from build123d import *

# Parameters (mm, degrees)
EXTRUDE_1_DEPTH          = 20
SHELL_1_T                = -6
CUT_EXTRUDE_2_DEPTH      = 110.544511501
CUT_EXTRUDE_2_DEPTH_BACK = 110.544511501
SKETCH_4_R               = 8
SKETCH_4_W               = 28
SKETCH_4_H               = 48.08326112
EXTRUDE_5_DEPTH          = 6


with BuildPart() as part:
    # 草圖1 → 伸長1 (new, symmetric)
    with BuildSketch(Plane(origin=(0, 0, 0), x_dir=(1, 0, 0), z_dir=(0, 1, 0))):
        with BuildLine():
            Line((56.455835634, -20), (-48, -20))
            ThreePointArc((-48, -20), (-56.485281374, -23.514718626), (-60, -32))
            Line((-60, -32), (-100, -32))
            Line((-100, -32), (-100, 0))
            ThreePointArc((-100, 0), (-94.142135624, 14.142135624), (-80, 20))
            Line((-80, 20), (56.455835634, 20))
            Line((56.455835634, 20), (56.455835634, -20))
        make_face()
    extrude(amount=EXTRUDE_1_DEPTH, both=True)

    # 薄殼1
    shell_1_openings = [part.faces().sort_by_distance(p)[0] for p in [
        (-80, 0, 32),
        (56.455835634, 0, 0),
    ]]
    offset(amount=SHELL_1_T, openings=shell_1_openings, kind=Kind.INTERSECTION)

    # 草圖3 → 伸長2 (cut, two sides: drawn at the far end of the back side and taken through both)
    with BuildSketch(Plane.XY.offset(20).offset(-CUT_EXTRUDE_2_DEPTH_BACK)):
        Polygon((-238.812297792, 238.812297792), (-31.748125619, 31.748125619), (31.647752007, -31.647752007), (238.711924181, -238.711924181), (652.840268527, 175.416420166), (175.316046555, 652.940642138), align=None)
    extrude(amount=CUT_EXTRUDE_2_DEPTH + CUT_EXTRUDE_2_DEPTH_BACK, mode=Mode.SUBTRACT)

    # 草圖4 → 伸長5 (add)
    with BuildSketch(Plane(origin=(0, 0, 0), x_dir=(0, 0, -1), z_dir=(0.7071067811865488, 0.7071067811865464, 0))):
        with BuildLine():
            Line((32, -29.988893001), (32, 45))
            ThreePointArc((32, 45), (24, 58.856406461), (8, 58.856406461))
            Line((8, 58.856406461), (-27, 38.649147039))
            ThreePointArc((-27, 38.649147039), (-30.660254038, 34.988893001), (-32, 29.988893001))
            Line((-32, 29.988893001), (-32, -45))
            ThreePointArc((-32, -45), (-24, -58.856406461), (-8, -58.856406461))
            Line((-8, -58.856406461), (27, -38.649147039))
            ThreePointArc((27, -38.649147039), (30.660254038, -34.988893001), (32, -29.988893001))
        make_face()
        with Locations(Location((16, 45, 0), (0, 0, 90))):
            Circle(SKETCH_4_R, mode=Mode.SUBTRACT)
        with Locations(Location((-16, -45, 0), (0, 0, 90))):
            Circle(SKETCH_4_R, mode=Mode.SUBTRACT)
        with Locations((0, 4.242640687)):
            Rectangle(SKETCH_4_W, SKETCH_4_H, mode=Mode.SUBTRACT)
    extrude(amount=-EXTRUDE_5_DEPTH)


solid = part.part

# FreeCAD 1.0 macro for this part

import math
import FreeCAD as App
import Part
import Sketcher
from FreeCAD import Vector
Q = App.Units.Quantity


def faces_at(feature, points):
    """Names of the faces that lie closest to the given points."""
    faces = feature.Shape.Faces
    near = lambda p: min(range(len(faces)), key=lambda i: faces[i].distToShape(Part.Vertex(*p))[0])
    return sorted({f"Face{near(p) + 1}" for p in points})


def add_polygon(sketch, points):
    """Adds a closed chain of lines whose ends are joined by coincident constraints."""
    first, n = sketch.GeometryCount, len(points)
    for a, b in zip(points, points[1:] + points[:1]):
        sketch.addGeometry(Part.LineSegment(App.Vector(*a, 0), App.Vector(*b, 0)), False)
    for i in range(n):
        sketch.addConstraint(Sketcher.Constraint("Coincident", first + i, 2, first + (i + 1) % n, 1))

doc = App.newDocument("Part")
body = doc.addObject("PartDesign::Body", "Body")

sketch1 = doc.addObject("Sketcher::SketchObject", "Sketch")
body.addObject(sketch1)
sketch1.AttachmentSupport = (doc.XZ_Plane, [""])
sketch1.MapMode = "FlatFace"
sketch1.addGeometry([
    Part.LineSegment(Vector(-48, 20, 0), Vector(56.455836, 20, 0)),
    Part.LineSegment(Vector(56.455836, 20, 0), Vector(56.455836, -20, 0)),
    Part.LineSegment(Vector(56.455836, -20, 0), Vector(-80, -20, 0)),
    Part.ArcOfCircle(Part.Circle(Vector(-80, 0, 0), Vector(0, 0, 1), 20), math.radians(180), math.radians(270)),
    Part.LineSegment(Vector(-100, 0, 0), Vector(-100, 32, 0)),
    Part.LineSegment(Vector(-100, 32, 0), Vector(-60, 32, 0)),
    Part.ArcOfCircle(Part.Circle(Vector(-48, 32, 0), Vector(0, 0, 1), 12), math.radians(-180), math.radians(-90)),
], False)
sketch1.addConstraint([
    Sketcher.Constraint("Coincident", 0, 2, 1, 1),
    Sketcher.Constraint("Coincident", 1, 2, 2, 1),
    Sketcher.Constraint("Tangent", 2, 2, 3, 2),
    Sketcher.Constraint("Tangent", 3, 1, 4, 1),
    Sketcher.Constraint("Coincident", 4, 2, 5, 1),
    Sketcher.Constraint("Coincident", 5, 2, 6, 1),
    Sketcher.Constraint("Tangent", 6, 2, 0, 1),
    Sketcher.Constraint("Horizontal", 0),
    Sketcher.Constraint("Vertical", 1),
    Sketcher.Constraint("Horizontal", 2),
    Sketcher.Constraint("Vertical", 4),
    Sketcher.Constraint("Horizontal", 5),
    Sketcher.Constraint("PointOnObject", 3, 3, -1),
    Sketcher.Constraint("Horizontal", 6, 3, 4, 2),
    Sketcher.Constraint("Equal", 5, 1),
    Sketcher.Constraint("Radius", 3, 20.0),
    Sketcher.Constraint("Radius", 6, 12.0),
    Sketcher.Constraint("DistanceX", 5, 1, 5, 2, 40.0),
    Sketcher.Constraint("DistanceX", 3, 3, -1, 1, 80.0),
    Sketcher.Constraint("DistanceX", 0, 1, 0, 2, 104.455836),
])
pad1 = doc.addObject("PartDesign::Pad", "Pad")
body.addObject(pad1)
pad1.Profile = sketch1
pad1.Length = 40
pad1.Midplane = True
doc.recompute()

thickness = doc.addObject("PartDesign::Thickness", "Thickness")
body.addObject(thickness)
thickness.Base = (pad1, faces_at(pad1, [(-80, 0, 32), (56.456, 0, 0)]))
thickness.Value = 6
thickness.Reversed = True
thickness.Join = "Intersection"

sketch2 = doc.addObject("Sketcher::SketchObject", "Sketch001")
body.addObject(sketch2)
sketch2.AttachmentSupport = (doc.XY_Plane, [""])
sketch2.MapMode = "FlatFace"
sketch2.AttachmentOffset = App.Placement(Vector(0, 0, 20), App.Rotation())
add_polygon(sketch2, [(-238.812298, 238.812298), (238.711924, -238.711924), (652.840269, 175.41642), (175.316047, 652.940642)])
sketch2.addConstraint([
    Sketcher.Constraint("Perpendicular", 0, 1),
    Sketcher.Constraint("Perpendicular", 1, 2),
    Sketcher.Constraint("Perpendicular", 2, 3),
    Sketcher.Constraint("Angle", 0, Q("-45 deg")),
    Sketcher.Constraint("Distance", 0, 675.321231),
    Sketcher.Constraint("Distance", 1, 585.665921),
    Sketcher.Constraint("DistanceX", -1, 1, 1, 2, 652.840269),
    Sketcher.Constraint("DistanceY", -1, 1, 1, 2, 175.41642),
])
pocket1 = doc.addObject("PartDesign::Pocket", "Pocket")
body.addObject(pocket1)
pocket1.Profile = sketch2
pocket1.Type = "ThroughAll"
pocket1.Midplane = True

sketch3 = doc.addObject("Sketcher::SketchObject", "Sketch002")
body.addObject(sketch3)
sketch3.Placement = App.Placement(Vector(0, 0, 0), App.Rotation(Vector(0, 0, -1), Vector(-0.707106781, 0.707106781, 0), Vector(0.707106781, 0.707106781, 0), "ZXY"))
sketch3.addGeometry(Part.LineSegment(Vector(32, -29.988893, 0), Vector(32, 45, 0)), False)
sketch3.addGeometry(Part.ArcOfCircle(Part.Circle(Vector(16, 45, 0), Vector(0, 0, 1), 16), math.radians(0), math.radians(120)), False)
sketch3.addGeometry(Part.LineSegment(Vector(8, 58.856406, 0), Vector(-27, 38.649147, 0)), False)
sketch3.addGeometry(Part.ArcOfCircle(Part.Circle(Vector(-22, 29.988893, 0), Vector(0, 0, 1), 10), math.radians(120), math.radians(180)), False)
sketch3.addGeometry(Part.LineSegment(Vector(-32, 29.988893, 0), Vector(-32, -45, 0)), False)
sketch3.addGeometry(Part.ArcOfCircle(Part.Circle(Vector(-16, -45, 0), Vector(0, 0, 1), 16), math.radians(180), math.radians(300)), False)
sketch3.addGeometry(Part.LineSegment(Vector(-8, -58.856406, 0), Vector(27, -38.649147, 0)), False)
sketch3.addGeometry(Part.ArcOfCircle(Part.Circle(Vector(22, -29.988893, 0), Vector(0, 0, 1), 10), math.radians(-60), math.radians(0)), False)
sketch3.addGeometry(Part.Circle(Vector(-16, -45, 0), Vector(0, 0, 1), 8), False)
add_polygon(sketch3, [(14, -19.79899), (-14, -19.79899), (-14, 28.284271), (14, 28.284271)])
sketch3.addGeometry(Part.Circle(Vector(16, 45, 0), Vector(0, 0, 1), 8), False)
sketch3.addConstraint([
    Sketcher.Constraint("Tangent", 0, 2, 1, 1),
    Sketcher.Constraint("Tangent", 1, 2, 2, 1),
    Sketcher.Constraint("Tangent", 2, 2, 3, 1),
    Sketcher.Constraint("Tangent", 3, 2, 4, 1),
    Sketcher.Constraint("Tangent", 4, 2, 5, 1),
    Sketcher.Constraint("Tangent", 5, 2, 6, 1),
    Sketcher.Constraint("Tangent", 6, 2, 7, 1),
    Sketcher.Constraint("Tangent", 7, 2, 0, 1),
    Sketcher.Constraint("Vertical", 0),
    Sketcher.Constraint("Vertical", 4),
    Sketcher.Constraint("Horizontal", 9),
    Sketcher.Constraint("Vertical", 10),
    Sketcher.Constraint("Horizontal", 11),
    Sketcher.Constraint("Vertical", 12),
    Sketcher.Constraint("Coincident", 8, 3, 5, 3),
    Sketcher.Constraint("Coincident", 13, 3, 1, 3),
    Sketcher.Constraint("Equal", 1, 5),
    Sketcher.Constraint("Equal", 3, 7),
    Sketcher.Constraint("Equal", 8, 13),
    Sketcher.Constraint("Symmetric", 1, 3, 5, 3, -1, 1),
    Sketcher.Constraint("Parallel", 2, 6),
    Sketcher.Constraint("Diameter", 8, 16.0),
    Sketcher.Constraint("Radius", 1, 16.0),
    Sketcher.Constraint("Radius", 3, 10.0),
    Sketcher.Constraint("DistanceX", 9, 2, 9, 1, 28.0),
    Sketcher.Constraint("Angle", 2, Q("-150 deg")),
    Sketcher.Constraint("DistanceX", -1, 1, 1, 3, 16.0),
    Sketcher.Constraint("DistanceY", -1, 1, 1, 3, 45.0),
    Sketcher.Constraint("DistanceX", 9, 2, -1, 1, 14.0),
    Sketcher.Constraint("DistanceY", 10, 1, 10, 2, 48.083261),
    Sketcher.Constraint("DistanceY", 9, 2, -1, 1, 19.79899),
])
pad2 = doc.addObject("PartDesign::Pad", "Pad001")
body.addObject(pad2)
pad2.Profile = sketch3
pad2.Length = 6
pad2.Reversed = True

doc.recompute()
